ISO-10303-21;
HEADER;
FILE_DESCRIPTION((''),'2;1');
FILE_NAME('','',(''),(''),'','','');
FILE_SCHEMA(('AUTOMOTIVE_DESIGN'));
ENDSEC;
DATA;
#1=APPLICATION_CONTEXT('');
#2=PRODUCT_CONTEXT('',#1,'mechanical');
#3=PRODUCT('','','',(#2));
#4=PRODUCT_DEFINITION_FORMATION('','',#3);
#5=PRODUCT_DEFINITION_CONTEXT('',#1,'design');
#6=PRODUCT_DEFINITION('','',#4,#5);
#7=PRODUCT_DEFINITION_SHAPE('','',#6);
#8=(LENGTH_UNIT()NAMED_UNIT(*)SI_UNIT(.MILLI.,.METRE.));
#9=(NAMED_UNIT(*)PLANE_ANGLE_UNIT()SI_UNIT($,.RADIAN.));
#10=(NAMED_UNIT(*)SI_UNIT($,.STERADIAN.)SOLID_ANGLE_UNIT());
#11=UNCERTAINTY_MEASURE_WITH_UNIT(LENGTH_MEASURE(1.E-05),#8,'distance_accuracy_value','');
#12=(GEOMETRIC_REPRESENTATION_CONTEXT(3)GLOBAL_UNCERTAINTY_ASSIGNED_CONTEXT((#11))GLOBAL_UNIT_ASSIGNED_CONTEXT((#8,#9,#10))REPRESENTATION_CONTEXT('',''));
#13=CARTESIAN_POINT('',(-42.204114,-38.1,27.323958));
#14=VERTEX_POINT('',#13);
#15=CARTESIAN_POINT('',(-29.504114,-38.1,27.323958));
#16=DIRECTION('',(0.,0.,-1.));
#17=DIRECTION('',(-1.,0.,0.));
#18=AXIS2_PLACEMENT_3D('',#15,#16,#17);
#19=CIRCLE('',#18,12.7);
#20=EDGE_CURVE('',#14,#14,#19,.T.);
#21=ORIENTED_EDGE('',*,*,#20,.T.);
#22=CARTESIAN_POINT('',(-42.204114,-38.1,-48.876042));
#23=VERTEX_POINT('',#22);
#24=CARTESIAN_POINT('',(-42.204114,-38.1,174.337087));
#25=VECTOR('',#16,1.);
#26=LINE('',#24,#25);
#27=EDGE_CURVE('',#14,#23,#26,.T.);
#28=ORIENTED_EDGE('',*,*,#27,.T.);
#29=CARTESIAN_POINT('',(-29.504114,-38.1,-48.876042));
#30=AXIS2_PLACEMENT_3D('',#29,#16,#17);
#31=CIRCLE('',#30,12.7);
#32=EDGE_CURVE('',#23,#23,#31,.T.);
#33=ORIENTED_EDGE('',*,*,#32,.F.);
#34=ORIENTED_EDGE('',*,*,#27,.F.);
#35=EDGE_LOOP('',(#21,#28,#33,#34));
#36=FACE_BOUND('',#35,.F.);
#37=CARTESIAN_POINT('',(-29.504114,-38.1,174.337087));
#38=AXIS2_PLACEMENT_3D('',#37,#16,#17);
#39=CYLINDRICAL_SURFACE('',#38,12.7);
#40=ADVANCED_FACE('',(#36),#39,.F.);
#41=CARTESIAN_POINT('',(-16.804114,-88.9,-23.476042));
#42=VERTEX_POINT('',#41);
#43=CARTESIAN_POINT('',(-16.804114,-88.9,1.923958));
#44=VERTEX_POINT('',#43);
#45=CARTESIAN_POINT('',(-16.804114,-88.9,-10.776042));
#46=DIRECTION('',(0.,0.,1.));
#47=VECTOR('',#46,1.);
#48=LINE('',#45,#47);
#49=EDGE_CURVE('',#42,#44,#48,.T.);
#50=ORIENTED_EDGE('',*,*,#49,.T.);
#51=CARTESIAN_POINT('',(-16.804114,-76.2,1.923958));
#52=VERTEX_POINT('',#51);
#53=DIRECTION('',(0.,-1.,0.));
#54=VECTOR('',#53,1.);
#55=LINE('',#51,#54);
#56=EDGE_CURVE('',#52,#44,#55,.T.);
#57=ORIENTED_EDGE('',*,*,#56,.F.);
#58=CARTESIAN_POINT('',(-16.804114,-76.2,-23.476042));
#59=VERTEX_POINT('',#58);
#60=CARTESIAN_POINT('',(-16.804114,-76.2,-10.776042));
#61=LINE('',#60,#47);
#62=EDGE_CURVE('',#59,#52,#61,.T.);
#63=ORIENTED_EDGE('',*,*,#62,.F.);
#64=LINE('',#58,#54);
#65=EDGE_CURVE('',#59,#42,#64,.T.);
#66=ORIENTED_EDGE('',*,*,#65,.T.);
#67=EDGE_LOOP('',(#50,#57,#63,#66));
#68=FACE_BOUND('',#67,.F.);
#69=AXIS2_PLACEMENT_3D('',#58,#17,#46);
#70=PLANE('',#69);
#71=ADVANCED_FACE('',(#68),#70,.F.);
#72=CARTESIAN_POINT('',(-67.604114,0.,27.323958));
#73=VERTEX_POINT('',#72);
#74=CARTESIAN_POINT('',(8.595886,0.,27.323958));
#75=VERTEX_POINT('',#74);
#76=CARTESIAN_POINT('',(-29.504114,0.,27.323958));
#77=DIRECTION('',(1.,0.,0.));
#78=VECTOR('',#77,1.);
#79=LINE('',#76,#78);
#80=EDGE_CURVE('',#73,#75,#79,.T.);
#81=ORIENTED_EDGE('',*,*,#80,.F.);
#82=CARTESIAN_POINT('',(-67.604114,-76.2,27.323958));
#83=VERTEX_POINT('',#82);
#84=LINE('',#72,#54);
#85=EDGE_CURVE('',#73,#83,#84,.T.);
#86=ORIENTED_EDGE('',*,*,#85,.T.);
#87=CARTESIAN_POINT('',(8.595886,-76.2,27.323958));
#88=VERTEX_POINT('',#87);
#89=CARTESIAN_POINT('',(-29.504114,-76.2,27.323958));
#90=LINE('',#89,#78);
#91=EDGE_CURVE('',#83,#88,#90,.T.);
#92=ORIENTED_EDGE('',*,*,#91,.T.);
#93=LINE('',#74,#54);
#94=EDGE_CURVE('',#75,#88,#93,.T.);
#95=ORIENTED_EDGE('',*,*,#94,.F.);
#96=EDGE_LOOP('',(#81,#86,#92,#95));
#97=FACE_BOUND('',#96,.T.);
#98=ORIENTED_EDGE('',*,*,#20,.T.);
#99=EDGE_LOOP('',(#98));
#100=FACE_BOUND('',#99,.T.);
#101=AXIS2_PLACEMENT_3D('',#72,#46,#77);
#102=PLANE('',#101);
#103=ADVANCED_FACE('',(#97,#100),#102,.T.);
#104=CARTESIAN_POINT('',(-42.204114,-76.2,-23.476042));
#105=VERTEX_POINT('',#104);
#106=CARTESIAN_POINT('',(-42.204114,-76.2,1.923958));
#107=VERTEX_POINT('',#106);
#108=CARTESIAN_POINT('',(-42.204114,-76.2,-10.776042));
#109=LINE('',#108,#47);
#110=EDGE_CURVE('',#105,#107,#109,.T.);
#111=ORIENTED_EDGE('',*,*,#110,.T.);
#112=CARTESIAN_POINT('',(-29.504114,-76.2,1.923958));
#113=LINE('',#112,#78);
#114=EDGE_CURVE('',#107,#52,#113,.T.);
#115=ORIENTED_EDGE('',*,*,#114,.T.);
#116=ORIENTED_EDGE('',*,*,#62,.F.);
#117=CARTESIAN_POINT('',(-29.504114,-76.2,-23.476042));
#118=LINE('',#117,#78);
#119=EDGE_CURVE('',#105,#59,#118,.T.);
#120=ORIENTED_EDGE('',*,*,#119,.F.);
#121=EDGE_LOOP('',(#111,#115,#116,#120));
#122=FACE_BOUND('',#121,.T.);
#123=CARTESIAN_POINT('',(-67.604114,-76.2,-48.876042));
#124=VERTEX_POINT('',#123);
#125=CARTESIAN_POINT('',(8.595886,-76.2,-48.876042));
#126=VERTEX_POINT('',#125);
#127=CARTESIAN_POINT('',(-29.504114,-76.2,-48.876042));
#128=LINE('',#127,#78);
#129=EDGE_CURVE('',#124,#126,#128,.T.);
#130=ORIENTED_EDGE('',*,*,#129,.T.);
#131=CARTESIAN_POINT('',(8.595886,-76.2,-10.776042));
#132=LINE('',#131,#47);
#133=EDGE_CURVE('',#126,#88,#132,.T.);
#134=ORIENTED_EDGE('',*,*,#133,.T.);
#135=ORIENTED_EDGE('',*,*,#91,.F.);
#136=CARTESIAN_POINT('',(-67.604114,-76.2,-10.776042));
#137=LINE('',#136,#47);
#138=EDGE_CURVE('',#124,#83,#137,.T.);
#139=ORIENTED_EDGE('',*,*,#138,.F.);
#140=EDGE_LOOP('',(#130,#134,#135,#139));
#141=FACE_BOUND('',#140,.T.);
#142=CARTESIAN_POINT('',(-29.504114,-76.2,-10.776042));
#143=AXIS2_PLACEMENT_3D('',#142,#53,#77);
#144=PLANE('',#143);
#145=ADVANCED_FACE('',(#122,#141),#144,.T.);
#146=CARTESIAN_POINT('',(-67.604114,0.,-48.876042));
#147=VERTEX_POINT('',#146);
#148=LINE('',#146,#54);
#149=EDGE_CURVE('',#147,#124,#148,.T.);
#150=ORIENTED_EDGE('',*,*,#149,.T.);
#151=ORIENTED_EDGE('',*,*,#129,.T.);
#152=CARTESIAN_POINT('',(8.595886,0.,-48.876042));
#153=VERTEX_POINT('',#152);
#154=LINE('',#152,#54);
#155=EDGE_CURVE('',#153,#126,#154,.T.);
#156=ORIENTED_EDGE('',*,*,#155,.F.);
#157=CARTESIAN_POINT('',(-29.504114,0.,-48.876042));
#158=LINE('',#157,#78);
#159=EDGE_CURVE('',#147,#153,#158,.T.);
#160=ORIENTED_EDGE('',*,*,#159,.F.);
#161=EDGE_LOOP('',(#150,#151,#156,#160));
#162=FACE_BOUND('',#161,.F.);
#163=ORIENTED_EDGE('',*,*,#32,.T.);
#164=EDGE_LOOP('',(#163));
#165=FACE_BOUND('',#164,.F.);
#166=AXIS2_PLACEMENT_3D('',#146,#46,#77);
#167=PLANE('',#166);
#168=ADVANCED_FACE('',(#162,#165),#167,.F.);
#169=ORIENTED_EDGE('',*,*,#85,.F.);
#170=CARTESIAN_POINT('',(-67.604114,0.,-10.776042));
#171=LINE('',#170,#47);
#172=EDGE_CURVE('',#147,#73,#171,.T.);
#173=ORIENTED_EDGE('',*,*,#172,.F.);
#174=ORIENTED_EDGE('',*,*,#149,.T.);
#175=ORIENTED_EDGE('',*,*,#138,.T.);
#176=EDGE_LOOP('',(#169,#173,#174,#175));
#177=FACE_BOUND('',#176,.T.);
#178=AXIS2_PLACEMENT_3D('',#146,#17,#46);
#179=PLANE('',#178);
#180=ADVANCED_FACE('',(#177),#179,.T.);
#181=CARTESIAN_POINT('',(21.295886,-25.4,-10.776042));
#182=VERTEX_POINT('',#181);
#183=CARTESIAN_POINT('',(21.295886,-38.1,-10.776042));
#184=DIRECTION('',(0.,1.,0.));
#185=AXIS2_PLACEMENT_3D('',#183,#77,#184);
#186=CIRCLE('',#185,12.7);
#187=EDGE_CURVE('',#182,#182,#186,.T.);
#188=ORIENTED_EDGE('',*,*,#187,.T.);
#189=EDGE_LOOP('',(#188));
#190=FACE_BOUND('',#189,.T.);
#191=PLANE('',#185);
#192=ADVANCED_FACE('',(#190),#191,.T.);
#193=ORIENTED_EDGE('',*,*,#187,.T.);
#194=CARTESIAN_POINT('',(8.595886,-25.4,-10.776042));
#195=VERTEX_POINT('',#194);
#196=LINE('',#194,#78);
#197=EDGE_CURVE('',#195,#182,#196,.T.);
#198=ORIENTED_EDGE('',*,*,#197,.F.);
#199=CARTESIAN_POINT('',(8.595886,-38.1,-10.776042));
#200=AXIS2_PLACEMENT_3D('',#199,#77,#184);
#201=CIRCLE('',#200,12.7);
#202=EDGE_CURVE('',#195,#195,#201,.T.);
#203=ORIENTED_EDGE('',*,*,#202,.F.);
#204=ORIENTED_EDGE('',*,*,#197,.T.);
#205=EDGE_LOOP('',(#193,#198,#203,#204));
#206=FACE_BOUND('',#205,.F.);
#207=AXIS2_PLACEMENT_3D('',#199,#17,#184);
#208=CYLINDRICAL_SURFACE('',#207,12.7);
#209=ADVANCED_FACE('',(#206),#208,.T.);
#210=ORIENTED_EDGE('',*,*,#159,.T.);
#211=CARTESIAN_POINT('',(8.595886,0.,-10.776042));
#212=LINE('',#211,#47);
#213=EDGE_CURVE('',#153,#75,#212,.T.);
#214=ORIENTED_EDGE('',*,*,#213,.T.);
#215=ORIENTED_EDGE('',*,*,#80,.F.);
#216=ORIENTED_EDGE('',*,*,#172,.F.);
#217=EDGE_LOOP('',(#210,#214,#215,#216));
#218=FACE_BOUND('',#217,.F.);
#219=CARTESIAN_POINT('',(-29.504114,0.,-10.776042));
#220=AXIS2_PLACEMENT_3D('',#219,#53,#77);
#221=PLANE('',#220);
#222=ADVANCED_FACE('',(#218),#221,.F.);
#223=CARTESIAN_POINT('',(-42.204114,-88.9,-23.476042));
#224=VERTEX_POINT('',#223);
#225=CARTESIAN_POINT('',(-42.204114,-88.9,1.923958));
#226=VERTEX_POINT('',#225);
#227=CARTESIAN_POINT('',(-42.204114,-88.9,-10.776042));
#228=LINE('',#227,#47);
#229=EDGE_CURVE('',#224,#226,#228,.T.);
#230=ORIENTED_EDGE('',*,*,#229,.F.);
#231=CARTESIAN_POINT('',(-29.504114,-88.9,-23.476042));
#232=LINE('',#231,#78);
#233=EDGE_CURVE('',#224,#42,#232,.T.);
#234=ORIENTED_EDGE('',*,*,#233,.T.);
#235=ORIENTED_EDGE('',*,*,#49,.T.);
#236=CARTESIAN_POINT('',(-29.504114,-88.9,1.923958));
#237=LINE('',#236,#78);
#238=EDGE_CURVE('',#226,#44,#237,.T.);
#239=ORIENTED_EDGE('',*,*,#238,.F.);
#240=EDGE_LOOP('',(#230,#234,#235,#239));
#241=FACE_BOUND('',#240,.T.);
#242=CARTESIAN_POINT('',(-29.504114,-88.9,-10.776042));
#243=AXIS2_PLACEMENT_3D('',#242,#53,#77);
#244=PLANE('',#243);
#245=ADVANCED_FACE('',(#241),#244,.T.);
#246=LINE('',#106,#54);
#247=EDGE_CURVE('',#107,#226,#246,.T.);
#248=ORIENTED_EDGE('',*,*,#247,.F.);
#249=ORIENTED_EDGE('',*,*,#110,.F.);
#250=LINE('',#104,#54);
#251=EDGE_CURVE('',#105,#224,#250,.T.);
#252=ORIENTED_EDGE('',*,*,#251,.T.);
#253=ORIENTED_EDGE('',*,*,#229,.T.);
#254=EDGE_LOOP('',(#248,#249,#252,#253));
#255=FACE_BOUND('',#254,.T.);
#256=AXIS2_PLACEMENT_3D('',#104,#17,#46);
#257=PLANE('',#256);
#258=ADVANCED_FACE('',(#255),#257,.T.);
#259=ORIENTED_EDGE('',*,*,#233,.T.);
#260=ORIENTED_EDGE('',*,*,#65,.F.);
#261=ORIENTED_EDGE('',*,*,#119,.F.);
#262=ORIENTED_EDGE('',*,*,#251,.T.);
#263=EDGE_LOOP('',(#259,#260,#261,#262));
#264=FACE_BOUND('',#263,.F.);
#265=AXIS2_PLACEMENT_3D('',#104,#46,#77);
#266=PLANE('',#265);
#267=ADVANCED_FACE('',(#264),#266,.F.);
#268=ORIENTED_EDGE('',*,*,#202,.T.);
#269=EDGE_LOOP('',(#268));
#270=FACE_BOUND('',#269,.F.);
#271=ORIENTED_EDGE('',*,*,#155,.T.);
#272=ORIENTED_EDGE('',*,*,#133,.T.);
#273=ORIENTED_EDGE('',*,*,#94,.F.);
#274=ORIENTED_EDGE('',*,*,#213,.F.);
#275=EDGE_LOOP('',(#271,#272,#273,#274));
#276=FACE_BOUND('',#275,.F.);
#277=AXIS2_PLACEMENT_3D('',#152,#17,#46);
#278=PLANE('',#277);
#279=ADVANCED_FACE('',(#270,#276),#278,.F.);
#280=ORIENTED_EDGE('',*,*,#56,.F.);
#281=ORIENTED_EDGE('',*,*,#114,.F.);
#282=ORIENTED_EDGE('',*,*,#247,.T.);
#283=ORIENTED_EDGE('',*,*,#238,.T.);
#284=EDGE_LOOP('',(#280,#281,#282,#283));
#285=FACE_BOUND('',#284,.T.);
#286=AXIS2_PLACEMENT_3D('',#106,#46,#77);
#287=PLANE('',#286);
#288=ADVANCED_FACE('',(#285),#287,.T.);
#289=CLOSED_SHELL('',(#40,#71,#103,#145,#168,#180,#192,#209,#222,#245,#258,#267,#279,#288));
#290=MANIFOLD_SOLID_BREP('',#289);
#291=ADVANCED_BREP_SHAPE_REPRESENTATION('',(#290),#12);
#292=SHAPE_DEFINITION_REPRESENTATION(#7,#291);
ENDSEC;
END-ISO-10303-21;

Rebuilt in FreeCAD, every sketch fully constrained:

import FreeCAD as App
import Part
import Sketcher
from FreeCAD import Vector
Q = App.Units.Quantity


def add_polygon(sketch, points):
    """Adds a closed chain of lines whose ends are joined by coincident constraints."""
    first, n = sketch.GeometryCount, len(points)
    for a, b in zip(points, points[1:] + points[:1]):
        sketch.addGeometry(Part.LineSegment(App.Vector(*a, 0), App.Vector(*b, 0)), False)
    for i in range(n):
        sketch.addConstraint(Sketcher.Constraint("Coincident", first + i, 2, first + (i + 1) % n, 1))

doc = App.newDocument("Part")
body = doc.addObject("PartDesign::Body", "Body")

# Sketch on XZ plane
sketch1 = doc.addObject("Sketcher::SketchObject", "Sketch")
body.addObject(sketch1)
sketch1.AttachmentSupport = (doc.XZ_Plane, [""])
sketch1.MapMode = "FlatFace"
add_polygon(sketch1, [(-68, 27), (-68, -49), (9, -49), (9, 27)])  # lines 0-3
sketch1.addConstraint([
    Sketcher.Constraint("Vertical", 0),
    Sketcher.Constraint("Horizontal", 1),
    Sketcher.Constraint("Vertical", 2),
    Sketcher.Constraint("Horizontal", 3),
    Sketcher.Constraint("Equal", 3, 0),
    Sketcher.Constraint("DistanceX", 1, 1, 1, 2, Q("3 in")),
    Sketcher.Constraint("DistanceY", 0, 2, -1, 1, Q("48.876042 mm")),
    Sketcher.Constraint("DistanceX", 0, 2, -1, 1, Q("67.604114 mm")),
])
pad1 = doc.addObject("PartDesign::Pad", "Pad")
body.addObject(pad1)
pad1.Profile = sketch1
pad1.Length = Q("3 in")

# Sketch on YZ plane
sketch2 = doc.addObject("Sketcher::SketchObject", "Sketch001")
body.addObject(sketch2)
sketch2.AttachmentSupport = (doc.YZ_Plane, [""])
sketch2.MapMode = "FlatFace"
sketch2.AttachmentOffset = App.Placement(Vector(0, 0, 8.595886), App.Rotation())
sketch2.addGeometry(Part.Circle(Vector(-38, -11, 0), Vector(0, 0, 1), 13), False)
sketch2.addConstraint([
    Sketcher.Constraint("Diameter", 0, Q("1 in")),
    Sketcher.Constraint("DistanceX", 0, 3, -1, 1, Q("1.5 in")),
    Sketcher.Constraint("DistanceY", 0, 3, -1, 1, Q("10.776042 mm")),
])
pad2 = doc.addObject("PartDesign::Pad", "Pad001")
body.addObject(pad2)
pad2.Profile = sketch2
pad2.Length = Q("0.5 in")

# Sketch on XZ plane
sketch3 = doc.addObject("Sketcher::SketchObject", "Sketch002")
body.addObject(sketch3)
sketch3.AttachmentSupport = (doc.XZ_Plane, [""])
sketch3.MapMode = "FlatFace"
sketch3.AttachmentOffset = App.Placement(Vector(0, 0, 3 * 25.4), App.Rotation())
add_polygon(sketch3, [(-42, 2), (-42, -23), (-17, -23), (-17, 2)])  # lines 0-3
sketch3.addConstraint([
    Sketcher.Constraint("Vertical", 0),
    Sketcher.Constraint("Horizontal", 1),
    Sketcher.Constraint("Vertical", 2),
    Sketcher.Constraint("Horizontal", 3),
    Sketcher.Constraint("Equal", 3, 0),
    Sketcher.Constraint("DistanceX", 1, 1, 1, 2, Q("1 in")),
    Sketcher.Constraint("DistanceY", 0, 2, -1, 1, Q("23.476042 mm")),
    Sketcher.Constraint("DistanceX", 0, 2, -1, 1, Q("42.204114 mm")),
])
pad3 = doc.addObject("PartDesign::Pad", "Pad002")
body.addObject(pad3)
pad3.Profile = sketch3
pad3.Length = Q("0.5 in")

# Sketch on XY plane
sketch4 = doc.addObject("Sketcher::SketchObject", "Sketch003")
body.addObject(sketch4)
sketch4.AttachmentSupport = (doc.XY_Plane, [""])
sketch4.MapMode = "FlatFace"
sketch4.AttachmentOffset = App.Placement(Vector(0, 0, 27.323958), App.Rotation())
sketch4.addGeometry(Part.Circle(Vector(-30, -38, 0), Vector(0, 0, 1), 13), False)
sketch4.addConstraint([
    Sketcher.Constraint("Diameter", 0, Q("1 in")),
    Sketcher.Constraint("DistanceY", 0, 3, -1, 1, Q("1.5 in")),
    Sketcher.Constraint("DistanceX", 0, 3, -1, 1, Q("29.504114 mm")),
])
doc.recompute()
hole = doc.addObject("PartDesign::Hole", "Hole")
body.addObject(hole)
hole.Profile = sketch4
hole.ThreadType = "None"
hole.Diameter = Q("1 in")
hole.DepthType = "ThroughAll"

doc.recompute()
